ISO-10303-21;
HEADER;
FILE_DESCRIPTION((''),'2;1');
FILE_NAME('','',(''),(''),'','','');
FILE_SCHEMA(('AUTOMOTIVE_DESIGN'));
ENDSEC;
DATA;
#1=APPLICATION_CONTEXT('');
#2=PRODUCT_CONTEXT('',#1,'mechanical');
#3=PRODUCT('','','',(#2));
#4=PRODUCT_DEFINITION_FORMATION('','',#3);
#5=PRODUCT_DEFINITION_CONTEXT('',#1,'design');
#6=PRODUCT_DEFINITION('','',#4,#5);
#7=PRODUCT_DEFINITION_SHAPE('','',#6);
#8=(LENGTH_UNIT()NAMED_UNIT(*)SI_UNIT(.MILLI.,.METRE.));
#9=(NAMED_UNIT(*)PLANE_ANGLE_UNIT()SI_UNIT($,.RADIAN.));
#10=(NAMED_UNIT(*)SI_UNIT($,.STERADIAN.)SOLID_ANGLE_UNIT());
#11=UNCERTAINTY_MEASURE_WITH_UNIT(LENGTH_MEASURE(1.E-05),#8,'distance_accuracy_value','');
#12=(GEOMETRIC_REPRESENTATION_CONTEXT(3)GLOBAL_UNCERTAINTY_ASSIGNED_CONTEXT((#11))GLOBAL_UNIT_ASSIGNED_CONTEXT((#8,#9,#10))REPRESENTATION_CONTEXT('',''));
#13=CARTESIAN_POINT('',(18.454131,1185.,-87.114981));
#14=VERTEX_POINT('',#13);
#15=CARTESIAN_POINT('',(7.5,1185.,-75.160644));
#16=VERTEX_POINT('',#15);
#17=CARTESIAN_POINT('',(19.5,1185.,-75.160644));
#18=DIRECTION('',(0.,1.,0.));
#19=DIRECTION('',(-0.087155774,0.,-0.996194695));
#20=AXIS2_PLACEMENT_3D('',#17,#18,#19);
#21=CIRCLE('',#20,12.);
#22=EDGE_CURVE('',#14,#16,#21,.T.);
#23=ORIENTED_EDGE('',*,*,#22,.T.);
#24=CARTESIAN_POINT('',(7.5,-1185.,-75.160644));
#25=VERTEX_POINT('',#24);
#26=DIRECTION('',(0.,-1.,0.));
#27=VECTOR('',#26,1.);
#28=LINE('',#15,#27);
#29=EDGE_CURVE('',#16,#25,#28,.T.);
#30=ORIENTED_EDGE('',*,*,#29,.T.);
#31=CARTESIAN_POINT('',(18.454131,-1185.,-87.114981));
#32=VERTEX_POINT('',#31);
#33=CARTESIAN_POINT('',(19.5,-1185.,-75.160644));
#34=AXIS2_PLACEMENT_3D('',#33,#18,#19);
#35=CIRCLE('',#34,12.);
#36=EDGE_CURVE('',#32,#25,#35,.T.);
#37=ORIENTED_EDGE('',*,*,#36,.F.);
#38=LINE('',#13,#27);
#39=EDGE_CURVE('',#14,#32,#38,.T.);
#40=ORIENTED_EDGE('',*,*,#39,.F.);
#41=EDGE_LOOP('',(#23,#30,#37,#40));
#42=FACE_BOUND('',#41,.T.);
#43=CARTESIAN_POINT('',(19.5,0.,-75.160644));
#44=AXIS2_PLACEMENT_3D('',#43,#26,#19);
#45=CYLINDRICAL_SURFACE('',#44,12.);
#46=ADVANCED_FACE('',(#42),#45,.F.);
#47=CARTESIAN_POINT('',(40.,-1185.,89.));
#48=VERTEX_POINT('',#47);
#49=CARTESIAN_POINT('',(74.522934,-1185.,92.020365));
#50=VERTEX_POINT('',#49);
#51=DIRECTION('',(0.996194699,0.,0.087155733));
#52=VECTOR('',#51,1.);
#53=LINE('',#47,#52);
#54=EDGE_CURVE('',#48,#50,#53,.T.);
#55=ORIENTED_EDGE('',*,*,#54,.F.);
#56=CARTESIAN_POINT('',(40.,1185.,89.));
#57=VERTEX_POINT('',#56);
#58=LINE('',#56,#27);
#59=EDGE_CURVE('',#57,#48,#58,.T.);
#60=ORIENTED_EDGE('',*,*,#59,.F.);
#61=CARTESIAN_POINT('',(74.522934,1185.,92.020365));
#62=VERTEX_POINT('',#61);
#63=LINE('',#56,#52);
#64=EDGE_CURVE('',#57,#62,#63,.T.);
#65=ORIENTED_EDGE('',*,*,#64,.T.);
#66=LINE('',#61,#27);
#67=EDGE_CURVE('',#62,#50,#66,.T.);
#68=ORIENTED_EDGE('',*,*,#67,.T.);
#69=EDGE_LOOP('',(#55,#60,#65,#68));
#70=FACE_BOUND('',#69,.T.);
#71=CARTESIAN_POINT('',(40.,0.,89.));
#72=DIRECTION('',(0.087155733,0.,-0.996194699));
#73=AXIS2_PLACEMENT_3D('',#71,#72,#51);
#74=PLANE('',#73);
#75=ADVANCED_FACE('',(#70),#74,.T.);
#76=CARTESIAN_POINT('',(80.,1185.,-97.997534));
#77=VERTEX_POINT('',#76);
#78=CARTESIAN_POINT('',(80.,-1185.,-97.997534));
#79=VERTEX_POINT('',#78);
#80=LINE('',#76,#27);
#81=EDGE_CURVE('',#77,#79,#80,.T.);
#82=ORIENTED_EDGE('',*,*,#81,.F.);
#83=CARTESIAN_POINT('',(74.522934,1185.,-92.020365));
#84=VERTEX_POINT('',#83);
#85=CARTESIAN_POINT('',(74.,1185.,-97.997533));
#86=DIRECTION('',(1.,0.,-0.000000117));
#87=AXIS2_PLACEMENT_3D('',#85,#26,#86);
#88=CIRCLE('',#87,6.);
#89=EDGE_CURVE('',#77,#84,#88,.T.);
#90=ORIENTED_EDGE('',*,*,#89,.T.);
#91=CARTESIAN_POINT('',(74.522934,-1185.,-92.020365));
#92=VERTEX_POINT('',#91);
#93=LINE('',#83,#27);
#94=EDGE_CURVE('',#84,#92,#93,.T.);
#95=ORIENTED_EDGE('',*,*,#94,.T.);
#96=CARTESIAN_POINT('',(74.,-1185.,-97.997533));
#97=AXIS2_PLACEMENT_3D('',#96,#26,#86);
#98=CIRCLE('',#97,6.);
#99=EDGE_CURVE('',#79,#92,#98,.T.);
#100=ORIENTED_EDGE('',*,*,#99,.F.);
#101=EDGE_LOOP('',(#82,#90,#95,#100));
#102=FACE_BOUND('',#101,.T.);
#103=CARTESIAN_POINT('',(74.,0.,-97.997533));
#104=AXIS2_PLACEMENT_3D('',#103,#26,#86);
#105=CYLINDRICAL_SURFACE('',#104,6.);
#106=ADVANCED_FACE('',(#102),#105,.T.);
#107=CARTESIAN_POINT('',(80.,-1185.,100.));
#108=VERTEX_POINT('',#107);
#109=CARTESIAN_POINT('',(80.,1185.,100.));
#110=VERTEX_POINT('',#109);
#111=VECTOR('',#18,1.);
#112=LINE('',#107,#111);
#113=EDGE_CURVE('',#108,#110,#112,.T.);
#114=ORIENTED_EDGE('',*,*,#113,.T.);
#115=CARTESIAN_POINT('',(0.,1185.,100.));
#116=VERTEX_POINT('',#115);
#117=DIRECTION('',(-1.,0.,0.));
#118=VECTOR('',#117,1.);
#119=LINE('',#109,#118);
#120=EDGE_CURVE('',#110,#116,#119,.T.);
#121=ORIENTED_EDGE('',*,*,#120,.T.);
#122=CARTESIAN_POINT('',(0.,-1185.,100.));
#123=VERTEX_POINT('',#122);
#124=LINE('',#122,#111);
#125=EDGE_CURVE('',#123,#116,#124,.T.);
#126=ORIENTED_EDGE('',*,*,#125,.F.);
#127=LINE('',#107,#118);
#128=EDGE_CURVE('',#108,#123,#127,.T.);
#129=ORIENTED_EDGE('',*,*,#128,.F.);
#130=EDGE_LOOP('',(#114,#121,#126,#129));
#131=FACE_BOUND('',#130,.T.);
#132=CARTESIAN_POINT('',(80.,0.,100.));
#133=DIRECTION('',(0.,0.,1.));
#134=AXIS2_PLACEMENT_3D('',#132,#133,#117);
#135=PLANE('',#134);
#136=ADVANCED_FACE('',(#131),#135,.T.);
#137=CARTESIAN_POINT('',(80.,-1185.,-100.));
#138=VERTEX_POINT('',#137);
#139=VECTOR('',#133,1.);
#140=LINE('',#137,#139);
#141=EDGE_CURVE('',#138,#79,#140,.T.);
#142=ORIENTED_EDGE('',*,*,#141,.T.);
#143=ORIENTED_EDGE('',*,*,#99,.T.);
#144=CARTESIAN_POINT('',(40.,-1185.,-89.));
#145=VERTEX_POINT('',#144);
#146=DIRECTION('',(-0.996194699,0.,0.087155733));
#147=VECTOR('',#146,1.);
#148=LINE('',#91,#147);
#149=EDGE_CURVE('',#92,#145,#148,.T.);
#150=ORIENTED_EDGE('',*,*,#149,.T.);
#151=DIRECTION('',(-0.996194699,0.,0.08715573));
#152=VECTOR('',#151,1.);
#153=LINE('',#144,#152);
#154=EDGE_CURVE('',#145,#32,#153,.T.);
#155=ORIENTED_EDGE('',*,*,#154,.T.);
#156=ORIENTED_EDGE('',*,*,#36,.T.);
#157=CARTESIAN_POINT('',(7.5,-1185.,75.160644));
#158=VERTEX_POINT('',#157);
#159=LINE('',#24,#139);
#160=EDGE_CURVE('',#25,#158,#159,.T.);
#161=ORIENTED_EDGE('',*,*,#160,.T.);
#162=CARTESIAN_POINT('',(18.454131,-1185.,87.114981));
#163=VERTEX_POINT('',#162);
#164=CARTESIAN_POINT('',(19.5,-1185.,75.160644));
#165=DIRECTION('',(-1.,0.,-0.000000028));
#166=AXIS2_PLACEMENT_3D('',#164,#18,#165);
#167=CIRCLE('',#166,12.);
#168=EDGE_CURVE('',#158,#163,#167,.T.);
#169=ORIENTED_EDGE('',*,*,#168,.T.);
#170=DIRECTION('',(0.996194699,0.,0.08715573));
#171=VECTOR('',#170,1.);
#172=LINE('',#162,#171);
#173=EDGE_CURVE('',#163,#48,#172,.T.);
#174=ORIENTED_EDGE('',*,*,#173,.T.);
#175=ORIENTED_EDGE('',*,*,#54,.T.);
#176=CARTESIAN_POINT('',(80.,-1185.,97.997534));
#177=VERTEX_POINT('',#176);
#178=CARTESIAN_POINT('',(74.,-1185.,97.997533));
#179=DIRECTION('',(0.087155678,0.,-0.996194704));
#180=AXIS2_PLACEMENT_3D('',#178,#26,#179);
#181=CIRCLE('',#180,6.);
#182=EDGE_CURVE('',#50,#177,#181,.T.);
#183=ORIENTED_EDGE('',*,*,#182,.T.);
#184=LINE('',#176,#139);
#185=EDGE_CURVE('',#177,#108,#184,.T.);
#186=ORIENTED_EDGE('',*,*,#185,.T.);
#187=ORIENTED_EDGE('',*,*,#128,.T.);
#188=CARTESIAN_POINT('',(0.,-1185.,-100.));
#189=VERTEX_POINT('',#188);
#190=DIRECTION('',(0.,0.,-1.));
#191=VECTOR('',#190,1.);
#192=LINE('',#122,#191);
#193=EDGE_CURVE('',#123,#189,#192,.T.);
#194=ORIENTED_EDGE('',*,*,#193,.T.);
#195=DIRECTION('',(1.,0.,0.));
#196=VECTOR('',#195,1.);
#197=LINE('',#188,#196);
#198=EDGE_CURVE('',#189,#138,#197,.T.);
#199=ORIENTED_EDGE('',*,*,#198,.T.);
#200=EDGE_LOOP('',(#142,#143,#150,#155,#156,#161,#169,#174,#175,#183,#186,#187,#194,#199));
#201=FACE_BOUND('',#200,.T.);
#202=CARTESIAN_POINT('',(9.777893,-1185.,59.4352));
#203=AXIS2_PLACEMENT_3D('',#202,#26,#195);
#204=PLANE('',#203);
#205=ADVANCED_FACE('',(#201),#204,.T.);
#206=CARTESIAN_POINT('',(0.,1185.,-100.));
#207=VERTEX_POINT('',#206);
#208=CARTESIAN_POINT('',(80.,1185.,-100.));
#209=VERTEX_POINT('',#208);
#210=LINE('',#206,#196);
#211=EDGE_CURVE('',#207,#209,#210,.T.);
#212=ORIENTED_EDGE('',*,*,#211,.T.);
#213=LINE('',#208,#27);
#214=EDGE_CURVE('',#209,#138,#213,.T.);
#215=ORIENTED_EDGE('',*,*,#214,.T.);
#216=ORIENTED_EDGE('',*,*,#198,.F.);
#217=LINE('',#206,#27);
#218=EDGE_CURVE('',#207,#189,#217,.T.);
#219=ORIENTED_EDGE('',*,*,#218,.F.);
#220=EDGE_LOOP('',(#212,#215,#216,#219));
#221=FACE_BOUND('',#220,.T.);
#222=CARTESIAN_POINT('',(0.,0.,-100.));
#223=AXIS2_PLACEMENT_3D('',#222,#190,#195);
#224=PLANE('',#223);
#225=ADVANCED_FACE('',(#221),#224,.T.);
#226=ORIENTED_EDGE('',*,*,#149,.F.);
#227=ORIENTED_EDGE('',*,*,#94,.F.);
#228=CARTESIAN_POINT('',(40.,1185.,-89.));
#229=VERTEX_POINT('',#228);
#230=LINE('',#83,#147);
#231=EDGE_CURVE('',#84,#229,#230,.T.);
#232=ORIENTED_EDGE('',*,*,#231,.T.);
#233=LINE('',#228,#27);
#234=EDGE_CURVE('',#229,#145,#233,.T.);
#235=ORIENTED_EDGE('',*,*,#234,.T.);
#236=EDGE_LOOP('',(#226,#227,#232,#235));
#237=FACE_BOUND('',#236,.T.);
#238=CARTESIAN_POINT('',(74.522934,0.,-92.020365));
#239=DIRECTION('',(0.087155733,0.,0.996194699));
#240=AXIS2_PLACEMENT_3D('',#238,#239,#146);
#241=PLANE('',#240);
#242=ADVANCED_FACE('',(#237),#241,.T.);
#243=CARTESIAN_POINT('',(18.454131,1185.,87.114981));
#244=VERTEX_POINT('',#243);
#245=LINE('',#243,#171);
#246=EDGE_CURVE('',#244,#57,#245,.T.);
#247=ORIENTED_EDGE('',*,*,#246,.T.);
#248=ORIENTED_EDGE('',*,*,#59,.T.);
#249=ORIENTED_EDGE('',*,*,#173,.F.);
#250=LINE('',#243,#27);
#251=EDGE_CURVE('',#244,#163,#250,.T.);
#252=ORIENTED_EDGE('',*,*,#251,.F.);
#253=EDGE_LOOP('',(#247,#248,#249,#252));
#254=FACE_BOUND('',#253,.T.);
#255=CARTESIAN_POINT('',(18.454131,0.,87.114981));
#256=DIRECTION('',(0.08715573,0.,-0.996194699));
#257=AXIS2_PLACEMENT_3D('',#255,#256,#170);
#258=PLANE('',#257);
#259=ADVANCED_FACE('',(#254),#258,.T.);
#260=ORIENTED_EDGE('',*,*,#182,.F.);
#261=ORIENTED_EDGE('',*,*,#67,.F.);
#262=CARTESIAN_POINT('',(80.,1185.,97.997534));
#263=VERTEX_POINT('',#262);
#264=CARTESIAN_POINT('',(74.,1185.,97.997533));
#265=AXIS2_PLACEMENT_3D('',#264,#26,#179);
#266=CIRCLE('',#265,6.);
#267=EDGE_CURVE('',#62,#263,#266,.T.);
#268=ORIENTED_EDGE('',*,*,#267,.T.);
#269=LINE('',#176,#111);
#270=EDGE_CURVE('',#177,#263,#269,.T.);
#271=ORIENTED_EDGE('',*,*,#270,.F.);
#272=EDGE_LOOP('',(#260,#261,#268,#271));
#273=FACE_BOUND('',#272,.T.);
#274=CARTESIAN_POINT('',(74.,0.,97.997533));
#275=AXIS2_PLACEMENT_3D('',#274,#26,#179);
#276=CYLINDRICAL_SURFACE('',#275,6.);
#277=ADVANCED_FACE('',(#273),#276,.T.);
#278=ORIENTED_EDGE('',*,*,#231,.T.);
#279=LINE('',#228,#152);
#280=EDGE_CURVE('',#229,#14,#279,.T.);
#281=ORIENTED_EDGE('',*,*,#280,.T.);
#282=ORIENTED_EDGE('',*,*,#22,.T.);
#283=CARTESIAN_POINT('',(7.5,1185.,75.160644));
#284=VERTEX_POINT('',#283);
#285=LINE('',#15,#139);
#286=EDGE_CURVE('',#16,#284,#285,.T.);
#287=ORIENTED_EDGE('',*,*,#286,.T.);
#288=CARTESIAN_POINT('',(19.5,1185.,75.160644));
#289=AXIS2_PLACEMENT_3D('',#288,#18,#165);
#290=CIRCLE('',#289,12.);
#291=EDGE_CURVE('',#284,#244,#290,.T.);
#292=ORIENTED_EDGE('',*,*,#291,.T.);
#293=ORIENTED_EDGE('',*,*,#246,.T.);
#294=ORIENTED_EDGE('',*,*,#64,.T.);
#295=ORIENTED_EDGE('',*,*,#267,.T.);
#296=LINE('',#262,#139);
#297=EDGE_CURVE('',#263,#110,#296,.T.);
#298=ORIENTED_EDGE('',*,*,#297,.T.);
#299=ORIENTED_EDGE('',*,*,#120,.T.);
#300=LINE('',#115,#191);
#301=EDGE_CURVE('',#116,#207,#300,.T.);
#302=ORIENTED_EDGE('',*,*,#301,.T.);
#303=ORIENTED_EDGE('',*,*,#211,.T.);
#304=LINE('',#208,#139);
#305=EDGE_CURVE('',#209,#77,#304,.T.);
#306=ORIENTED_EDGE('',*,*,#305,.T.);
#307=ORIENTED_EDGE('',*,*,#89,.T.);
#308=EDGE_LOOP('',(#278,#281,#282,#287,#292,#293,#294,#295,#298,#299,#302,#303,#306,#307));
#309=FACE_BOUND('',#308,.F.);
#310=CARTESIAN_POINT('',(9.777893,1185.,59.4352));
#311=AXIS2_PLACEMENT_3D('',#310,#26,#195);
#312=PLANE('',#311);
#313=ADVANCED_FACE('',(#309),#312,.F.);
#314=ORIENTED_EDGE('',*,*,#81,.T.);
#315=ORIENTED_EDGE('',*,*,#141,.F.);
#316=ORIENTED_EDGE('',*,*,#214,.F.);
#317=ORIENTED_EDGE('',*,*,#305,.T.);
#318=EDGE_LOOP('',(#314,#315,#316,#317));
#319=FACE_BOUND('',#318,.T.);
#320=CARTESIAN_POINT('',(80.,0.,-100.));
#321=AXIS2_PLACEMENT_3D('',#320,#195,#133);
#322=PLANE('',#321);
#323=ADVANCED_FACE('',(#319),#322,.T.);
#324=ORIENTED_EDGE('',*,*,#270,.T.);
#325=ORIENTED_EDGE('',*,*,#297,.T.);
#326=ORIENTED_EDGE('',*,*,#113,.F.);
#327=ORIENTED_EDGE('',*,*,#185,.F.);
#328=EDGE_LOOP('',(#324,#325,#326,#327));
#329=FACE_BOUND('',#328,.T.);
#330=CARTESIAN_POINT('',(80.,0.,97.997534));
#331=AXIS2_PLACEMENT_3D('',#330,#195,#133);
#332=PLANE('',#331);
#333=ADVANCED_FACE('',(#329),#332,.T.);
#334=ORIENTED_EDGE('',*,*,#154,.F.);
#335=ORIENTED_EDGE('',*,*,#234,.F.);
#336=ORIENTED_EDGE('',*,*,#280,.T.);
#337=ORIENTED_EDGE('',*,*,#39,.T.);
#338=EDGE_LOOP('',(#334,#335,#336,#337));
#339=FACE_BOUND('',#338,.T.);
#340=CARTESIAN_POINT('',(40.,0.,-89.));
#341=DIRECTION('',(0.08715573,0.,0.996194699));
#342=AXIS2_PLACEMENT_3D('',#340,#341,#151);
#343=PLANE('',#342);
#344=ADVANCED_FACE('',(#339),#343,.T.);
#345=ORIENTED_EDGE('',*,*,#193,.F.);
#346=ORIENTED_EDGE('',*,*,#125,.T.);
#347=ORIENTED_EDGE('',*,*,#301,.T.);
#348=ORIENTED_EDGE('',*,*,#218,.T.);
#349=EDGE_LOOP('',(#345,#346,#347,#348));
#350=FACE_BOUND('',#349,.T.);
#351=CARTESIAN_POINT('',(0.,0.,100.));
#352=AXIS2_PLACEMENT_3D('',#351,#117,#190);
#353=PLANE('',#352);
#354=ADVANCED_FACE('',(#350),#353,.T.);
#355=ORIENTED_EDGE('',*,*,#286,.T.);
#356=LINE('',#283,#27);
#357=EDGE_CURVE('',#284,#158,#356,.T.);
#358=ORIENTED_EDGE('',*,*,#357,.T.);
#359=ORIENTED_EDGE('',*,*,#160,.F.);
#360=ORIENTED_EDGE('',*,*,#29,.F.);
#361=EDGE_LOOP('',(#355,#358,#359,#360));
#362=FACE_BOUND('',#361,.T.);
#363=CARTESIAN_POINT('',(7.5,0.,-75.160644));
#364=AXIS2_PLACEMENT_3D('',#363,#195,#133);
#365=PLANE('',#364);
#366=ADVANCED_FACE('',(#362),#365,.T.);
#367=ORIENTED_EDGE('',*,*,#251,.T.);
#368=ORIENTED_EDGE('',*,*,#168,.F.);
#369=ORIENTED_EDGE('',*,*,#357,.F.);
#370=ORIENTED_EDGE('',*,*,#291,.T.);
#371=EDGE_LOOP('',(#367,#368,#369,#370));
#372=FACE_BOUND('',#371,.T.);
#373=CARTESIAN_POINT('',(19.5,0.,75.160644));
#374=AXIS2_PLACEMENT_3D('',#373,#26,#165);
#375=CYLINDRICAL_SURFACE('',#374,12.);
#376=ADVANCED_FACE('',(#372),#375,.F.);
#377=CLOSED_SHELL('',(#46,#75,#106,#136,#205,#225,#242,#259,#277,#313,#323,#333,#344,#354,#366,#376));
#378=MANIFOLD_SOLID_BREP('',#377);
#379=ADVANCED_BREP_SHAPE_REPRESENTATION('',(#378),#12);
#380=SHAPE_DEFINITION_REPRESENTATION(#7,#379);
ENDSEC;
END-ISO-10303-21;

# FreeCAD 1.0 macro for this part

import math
import FreeCAD as App
import Part
import Sketcher
from FreeCAD import Vector
Q = App.Units.Quantity

doc = App.newDocument("Part")
body = doc.addObject("PartDesign::Body", "Body")

sketch1 = body.newObject("Sketcher::SketchObject", "Sketch")
sketch1.AttachmentSupport = (doc.getObject("XZ_Plane"), [""])
sketch1.MapMode = "FlatFace"
sketch1.addGeometry([
    Part.LineSegment(Vector(0, 100, 0), Vector(0, -100, 0)),
    Part.LineSegment(Vector(0, -100, 0), Vector(80, -100, 0)),
    Part.LineSegment(Vector(80, -100, 0), Vector(80, -98, 0)),
    Part.ArcOfCircle(Part.Circle(Vector(74, -98, 0), Vector(0, 0, 1), 6), math.radians(0), math.radians(85)),
    Part.LineSegment(Vector(74.5, -92, 0), Vector(40, -89, 0)),
    Part.LineSegment(Vector(40, -89, 0), Vector(18.5, -87.1, 0)),
    Part.ArcOfCircle(Part.Circle(Vector(19.5, -75.2, 0), Vector(0, 0, 1), 12), math.radians(180), math.radians(265)),
    Part.LineSegment(Vector(7.5, -75.2, 0), Vector(7.5, 75.2, 0)),
    Part.ArcOfCircle(Part.Circle(Vector(19.5, 75.2, 0), Vector(0, 0, 1), 12), math.radians(95), math.radians(180)),
    Part.LineSegment(Vector(18.5, 87.1, 0), Vector(40, 89, 0)),
    Part.LineSegment(Vector(40, 89, 0), Vector(74.5, 92, 0)),
    Part.ArcOfCircle(Part.Circle(Vector(74, 98, 0), Vector(0, 0, 1), 6), math.radians(-85), math.radians(0)),
    Part.LineSegment(Vector(80, 98, 0), Vector(80, 100, 0)),
    Part.LineSegment(Vector(80, 100, 0), Vector(0, 100, 0)),
], False)
sketch1.addConstraint([
    Sketcher.Constraint("Coincident", 0, 2, 1, 1),
    Sketcher.Constraint("Coincident", 1, 2, 2, 1),
    Sketcher.Constraint("Tangent", 2, 2, 3, 1),
    Sketcher.Constraint("Tangent", 3, 2, 4, 1),
    Sketcher.Constraint("Coincident", 4, 2, 5, 1),
    Sketcher.Constraint("Tangent", 5, 2, 6, 2),
    Sketcher.Constraint("Tangent", 6, 1, 7, 1),
    Sketcher.Constraint("Tangent", 7, 2, 8, 2),
    Sketcher.Constraint("Tangent", 8, 1, 9, 1),
    Sketcher.Constraint("Coincident", 9, 2, 10, 1),
    Sketcher.Constraint("Tangent", 10, 2, 11, 1),
    Sketcher.Constraint("Tangent", 11, 2, 12, 1),
    Sketcher.Constraint("Coincident", 12, 2, 13, 1),
    Sketcher.Constraint("Coincident", 13, 2, 0, 1),
    Sketcher.Constraint("Vertical", 0),
    Sketcher.Constraint("Horizontal", 1),
    Sketcher.Constraint("Vertical", 2),
    Sketcher.Constraint("Vertical", 7),
    Sketcher.Constraint("Vertical", 12),
    Sketcher.Constraint("Horizontal", 13),
    Sketcher.Constraint("Equal", 6, 8),
    Sketcher.Constraint("Equal", 3, 11),
    Sketcher.Constraint("Symmetric", 0, 2, 13, 2, -1, 1),
    Sketcher.Constraint("Symmetric", 3, 3, 11, 3, -1),
    Sketcher.Constraint("Symmetric", 5, 2, 8, 1, -1),
    Sketcher.Constraint("Parallel", 4, 5),
    Sketcher.Constraint("Vertical", 4, 2, 9, 2),
    Sketcher.Constraint("Radius", 3, 6.0),
    Sketcher.Constraint("Radius", 6, 12.0),
    Sketcher.Constraint("DistanceX", 1, 1, 1, 2, 80.0),
    Sketcher.Constraint("DistanceY", 0, 2, 0, 1, 200.0),
    Sketcher.Constraint("Angle", 4, Q("175.000001 deg")),
    Sketcher.Constraint("DistanceX", -1, 1, 4, 2, 40.0),
    Sketcher.Constraint("DistanceY", 4, 2, -1, 1, 89.0),
    Sketcher.Constraint("DistanceX", -1, 1, 6, 3, 19.5),
])
pad1 = body.newObject("PartDesign::Pad", "Pad")
pad1.Profile = sketch1
pad1.Length = 2370
pad1.Midplane = True

doc.recompute()
